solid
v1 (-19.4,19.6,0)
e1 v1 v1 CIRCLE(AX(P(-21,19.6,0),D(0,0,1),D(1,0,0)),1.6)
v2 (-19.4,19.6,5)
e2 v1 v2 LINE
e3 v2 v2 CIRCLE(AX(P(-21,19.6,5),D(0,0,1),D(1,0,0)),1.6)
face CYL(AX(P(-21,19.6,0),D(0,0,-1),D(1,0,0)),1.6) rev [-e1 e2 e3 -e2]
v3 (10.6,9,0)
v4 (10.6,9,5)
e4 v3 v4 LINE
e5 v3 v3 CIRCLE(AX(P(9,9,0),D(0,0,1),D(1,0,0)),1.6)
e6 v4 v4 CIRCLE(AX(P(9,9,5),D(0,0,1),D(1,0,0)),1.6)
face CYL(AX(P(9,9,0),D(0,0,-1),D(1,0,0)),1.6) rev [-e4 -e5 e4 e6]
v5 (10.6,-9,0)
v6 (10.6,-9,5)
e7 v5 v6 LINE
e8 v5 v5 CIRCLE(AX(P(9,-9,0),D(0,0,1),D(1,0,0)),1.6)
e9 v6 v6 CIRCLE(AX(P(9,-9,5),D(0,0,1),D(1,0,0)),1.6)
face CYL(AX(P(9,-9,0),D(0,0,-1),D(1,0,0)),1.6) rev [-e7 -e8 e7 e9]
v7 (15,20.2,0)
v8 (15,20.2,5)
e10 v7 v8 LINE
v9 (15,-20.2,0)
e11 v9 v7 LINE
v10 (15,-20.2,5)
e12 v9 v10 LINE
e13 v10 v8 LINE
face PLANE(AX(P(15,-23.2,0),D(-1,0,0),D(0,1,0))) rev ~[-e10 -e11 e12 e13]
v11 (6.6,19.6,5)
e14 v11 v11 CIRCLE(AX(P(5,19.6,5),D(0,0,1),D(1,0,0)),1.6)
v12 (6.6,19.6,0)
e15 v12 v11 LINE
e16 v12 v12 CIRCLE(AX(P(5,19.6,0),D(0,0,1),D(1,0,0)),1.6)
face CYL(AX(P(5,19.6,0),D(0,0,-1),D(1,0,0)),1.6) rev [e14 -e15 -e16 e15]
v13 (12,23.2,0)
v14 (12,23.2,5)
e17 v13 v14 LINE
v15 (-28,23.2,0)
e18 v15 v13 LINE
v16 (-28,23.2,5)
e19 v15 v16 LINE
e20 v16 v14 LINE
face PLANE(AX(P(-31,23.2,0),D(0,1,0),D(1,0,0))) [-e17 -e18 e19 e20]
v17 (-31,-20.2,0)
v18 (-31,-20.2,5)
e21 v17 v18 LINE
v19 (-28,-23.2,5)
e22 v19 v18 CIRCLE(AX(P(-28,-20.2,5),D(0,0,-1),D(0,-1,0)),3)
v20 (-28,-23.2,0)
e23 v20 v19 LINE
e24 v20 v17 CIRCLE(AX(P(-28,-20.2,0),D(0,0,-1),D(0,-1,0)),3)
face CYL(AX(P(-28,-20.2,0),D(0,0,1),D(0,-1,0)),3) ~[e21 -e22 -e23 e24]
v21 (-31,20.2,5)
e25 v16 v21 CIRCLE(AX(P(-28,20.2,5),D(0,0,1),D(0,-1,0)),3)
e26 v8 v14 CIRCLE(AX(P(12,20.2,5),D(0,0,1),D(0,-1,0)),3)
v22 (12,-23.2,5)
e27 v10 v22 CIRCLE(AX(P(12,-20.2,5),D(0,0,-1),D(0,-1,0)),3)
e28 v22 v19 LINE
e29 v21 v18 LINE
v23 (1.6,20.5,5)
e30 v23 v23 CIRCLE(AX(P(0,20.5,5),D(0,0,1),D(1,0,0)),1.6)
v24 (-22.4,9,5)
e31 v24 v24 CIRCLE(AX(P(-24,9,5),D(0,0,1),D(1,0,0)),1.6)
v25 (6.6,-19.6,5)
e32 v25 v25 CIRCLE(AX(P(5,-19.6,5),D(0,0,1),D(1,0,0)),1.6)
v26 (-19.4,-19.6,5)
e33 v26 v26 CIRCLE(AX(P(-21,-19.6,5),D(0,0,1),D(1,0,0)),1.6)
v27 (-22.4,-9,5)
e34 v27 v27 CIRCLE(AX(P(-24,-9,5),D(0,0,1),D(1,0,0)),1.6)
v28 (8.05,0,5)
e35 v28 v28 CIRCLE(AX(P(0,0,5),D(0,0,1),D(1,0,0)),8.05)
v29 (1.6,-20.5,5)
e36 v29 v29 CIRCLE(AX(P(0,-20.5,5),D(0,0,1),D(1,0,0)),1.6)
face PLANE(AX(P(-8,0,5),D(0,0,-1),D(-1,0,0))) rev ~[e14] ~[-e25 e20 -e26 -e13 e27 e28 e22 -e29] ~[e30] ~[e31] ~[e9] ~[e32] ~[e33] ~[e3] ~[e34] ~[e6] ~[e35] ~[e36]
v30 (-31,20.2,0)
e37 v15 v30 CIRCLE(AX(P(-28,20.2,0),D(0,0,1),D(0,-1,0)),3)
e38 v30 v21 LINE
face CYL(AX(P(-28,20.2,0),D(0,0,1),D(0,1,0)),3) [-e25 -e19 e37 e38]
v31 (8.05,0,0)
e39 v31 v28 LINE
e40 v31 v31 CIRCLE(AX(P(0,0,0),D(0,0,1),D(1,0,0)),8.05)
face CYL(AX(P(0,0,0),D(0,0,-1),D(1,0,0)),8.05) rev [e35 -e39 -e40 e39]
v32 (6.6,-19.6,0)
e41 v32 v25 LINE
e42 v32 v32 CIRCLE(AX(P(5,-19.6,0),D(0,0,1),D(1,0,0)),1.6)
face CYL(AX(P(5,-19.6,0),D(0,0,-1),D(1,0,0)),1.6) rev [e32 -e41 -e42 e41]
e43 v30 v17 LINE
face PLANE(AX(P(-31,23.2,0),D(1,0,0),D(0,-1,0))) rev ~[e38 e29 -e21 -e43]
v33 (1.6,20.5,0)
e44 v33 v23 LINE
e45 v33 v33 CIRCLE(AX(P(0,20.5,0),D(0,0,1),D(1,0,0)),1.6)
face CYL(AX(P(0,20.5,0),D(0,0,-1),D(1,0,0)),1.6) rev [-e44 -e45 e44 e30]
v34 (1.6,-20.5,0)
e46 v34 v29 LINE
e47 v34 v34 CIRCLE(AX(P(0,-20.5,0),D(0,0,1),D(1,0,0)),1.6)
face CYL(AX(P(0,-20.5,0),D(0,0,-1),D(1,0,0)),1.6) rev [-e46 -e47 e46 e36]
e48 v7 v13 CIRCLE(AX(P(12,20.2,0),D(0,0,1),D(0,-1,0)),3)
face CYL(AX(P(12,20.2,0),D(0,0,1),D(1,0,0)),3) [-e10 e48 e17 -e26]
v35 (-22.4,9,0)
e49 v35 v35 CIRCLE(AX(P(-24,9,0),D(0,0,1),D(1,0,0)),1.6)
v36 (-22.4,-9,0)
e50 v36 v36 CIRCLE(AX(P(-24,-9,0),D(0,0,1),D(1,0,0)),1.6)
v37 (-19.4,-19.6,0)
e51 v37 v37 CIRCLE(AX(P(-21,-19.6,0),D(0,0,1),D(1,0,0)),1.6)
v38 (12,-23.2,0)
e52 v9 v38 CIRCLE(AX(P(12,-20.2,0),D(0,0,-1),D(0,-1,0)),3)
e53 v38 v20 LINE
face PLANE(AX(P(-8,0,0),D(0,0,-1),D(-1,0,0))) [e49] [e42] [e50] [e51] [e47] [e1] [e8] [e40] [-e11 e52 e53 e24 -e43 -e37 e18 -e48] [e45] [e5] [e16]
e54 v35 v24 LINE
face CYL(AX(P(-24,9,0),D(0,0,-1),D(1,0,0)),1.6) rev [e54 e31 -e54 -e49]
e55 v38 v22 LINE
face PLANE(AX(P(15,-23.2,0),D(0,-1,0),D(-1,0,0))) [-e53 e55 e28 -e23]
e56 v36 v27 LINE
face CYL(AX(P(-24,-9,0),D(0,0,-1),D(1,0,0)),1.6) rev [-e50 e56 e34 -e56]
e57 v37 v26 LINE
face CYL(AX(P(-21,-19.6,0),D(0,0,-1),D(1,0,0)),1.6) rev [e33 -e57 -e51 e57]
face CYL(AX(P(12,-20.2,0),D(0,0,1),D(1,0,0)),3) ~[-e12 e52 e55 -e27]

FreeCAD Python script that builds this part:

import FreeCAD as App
import Part
import Sketcher


def edges_at(feature, points):
    """Names of the edges that pass closest to the given points."""
    edges = feature.Shape.Edges
    near = lambda p: min(range(len(edges)), key=lambda i: edges[i].distToShape(Part.Vertex(*p))[0])
    return sorted({f"Edge{near(p) + 1}" for p in points})


def add_polygon(sketch, points):
    """Adds a closed chain of lines whose ends are joined by coincident constraints."""
    first, n = sketch.GeometryCount, len(points)
    for a, b in zip(points, points[1:] + points[:1]):
        sketch.addGeometry(Part.LineSegment(App.Vector(*a, 0), App.Vector(*b, 0)), False)
    for i in range(n):
        sketch.addConstraint(Sketcher.Constraint("Coincident", first + i, 2, first + (i + 1) % n, 1))

doc = App.newDocument("Part")
body = doc.addObject("PartDesign::Body", "Body")

sketch1 = body.newObject("Sketcher::SketchObject", "Sketch")
sketch1.AttachmentSupport = (doc.getObject("XY_Plane"), [""])
sketch1.MapMode = "FlatFace"
add_polygon(sketch1, [(15, -23.2), (15, 23.2), (-31, 23.2), (-31, -23.2)])
sketch1.addGeometry(Part.Circle(App.Vector(5, -19.6, 0), App.Vector(0, 0, 1), 1.6), False)
sketch1.addGeometry(Part.Circle(App.Vector(0, -20.5, 0), App.Vector(0, 0, 1), 1.6), False)
sketch1.addGeometry(Part.Circle(App.Vector(9, -9, 0), App.Vector(0, 0, 1), 1.6), False)
sketch1.addGeometry(Part.Circle(App.Vector(-21, -19.6, 0), App.Vector(0, 0, 1), 1.6), False)
sketch1.addGeometry(Part.Circle(App.Vector(-24, -9, 0), App.Vector(0, 0, 1), 1.6), False)
sketch1.addGeometry(Part.Circle(App.Vector(9, 9, 0), App.Vector(0, 0, 1), 1.6), False)
sketch1.addGeometry(Part.Circle(App.Vector(0, 0, 0), App.Vector(0, 0, 1), 8.05), False)
sketch1.addGeometry(Part.Circle(App.Vector(5, 19.6, 0), App.Vector(0, 0, 1), 1.6), False)
sketch1.addGeometry(Part.Circle(App.Vector(0, 20.5, 0), App.Vector(0, 0, 1), 1.6), False)
sketch1.addGeometry(Part.Circle(App.Vector(-24, 9, 0), App.Vector(0, 0, 1), 1.6), False)
sketch1.addGeometry(Part.Circle(App.Vector(-21, 19.6, 0), App.Vector(0, 0, 1), 1.6), False)
sketch1.addConstraint([
    Sketcher.Constraint("Vertical", 0),
    Sketcher.Constraint("Horizontal", 1),
    Sketcher.Constraint("Vertical", 2),
    Sketcher.Constraint("Horizontal", 3),
    Sketcher.Constraint("Coincident", 10, 3, -1, 1),
    Sketcher.Constraint("Equal", 4, 5),
    Sketcher.Constraint("Equal", 5, 6),
    Sketcher.Constraint("Equal", 6, 7),
    Sketcher.Constraint("Equal", 7, 8),
    Sketcher.Constraint("Equal", 8, 9),
    Sketcher.Constraint("Equal", 9, 11),
    Sketcher.Constraint("Equal", 11, 12),
    Sketcher.Constraint("Equal", 12, 13),
    Sketcher.Constraint("Equal", 13, 14),
    Sketcher.Constraint("Symmetric", 5, 3, 12, 3, -1, 1),
    Sketcher.Constraint("Symmetric", 6, 3, 9, 3, -1),
    Sketcher.Constraint("Symmetric", 4, 3, 11, 3, -1),
    Sketcher.Constraint("Symmetric", 8, 3, 13, 3, -1),
    Sketcher.Constraint("Symmetric", 7, 3, 14, 3, -1),
    Sketcher.Constraint("PointOnObject", 5, 3, -2),
    Sketcher.Constraint("Horizontal", 4, 3, 7, 3),
    Sketcher.Constraint("Horizontal", 6, 3, 8, 3),
    Sketcher.Constraint("Diameter", 4, 3.2),
    Sketcher.Constraint("Diameter", 10, 16.1),
    Sketcher.Constraint("DistanceX", 1, 2, 1, 1, 46.0),
    Sketcher.Constraint("DistanceY", 0, 1, 0, 2, 46.4),
    Sketcher.Constraint("DistanceX", -1, 1, 4, 3, 5.0),
    Sketcher.Constraint("DistanceX", -1, 1, 6, 3, 9.0),
    Sketcher.Constraint("DistanceY", 6, 3, -1, 1, 9.0),
    Sketcher.Constraint("DistanceX", 7, 3, -1, 1, 21.0),
    Sketcher.Constraint("DistanceX", 8, 3, -1, 1, 24.0),
    Sketcher.Constraint("DistanceX", -1, 1, 0, 2, 15.0),
    Sketcher.Constraint("DistanceY", 4, 3, -1, 1, 19.6),
    Sketcher.Constraint("DistanceY", 5, 3, -1, 1, 20.5),
    Sketcher.Constraint("DistanceY", -1, 1, 0, 2, 23.2),
])
pad1 = body.newObject("PartDesign::Pad", "Pad")
pad1.Profile = sketch1
pad1.Length = 5
doc.recompute()

fillet = body.newObject("PartDesign::Fillet", "Fillet")
fillet.Base = (pad1, edges_at(pad1, [
    (-31, -23.2, 2.5),
    (-31, 23.2, 2.5),
    (15, 23.2, 2.5),
    (15, -23.2, 2.5),
]))
fillet.Radius = 3

doc.recompute()
